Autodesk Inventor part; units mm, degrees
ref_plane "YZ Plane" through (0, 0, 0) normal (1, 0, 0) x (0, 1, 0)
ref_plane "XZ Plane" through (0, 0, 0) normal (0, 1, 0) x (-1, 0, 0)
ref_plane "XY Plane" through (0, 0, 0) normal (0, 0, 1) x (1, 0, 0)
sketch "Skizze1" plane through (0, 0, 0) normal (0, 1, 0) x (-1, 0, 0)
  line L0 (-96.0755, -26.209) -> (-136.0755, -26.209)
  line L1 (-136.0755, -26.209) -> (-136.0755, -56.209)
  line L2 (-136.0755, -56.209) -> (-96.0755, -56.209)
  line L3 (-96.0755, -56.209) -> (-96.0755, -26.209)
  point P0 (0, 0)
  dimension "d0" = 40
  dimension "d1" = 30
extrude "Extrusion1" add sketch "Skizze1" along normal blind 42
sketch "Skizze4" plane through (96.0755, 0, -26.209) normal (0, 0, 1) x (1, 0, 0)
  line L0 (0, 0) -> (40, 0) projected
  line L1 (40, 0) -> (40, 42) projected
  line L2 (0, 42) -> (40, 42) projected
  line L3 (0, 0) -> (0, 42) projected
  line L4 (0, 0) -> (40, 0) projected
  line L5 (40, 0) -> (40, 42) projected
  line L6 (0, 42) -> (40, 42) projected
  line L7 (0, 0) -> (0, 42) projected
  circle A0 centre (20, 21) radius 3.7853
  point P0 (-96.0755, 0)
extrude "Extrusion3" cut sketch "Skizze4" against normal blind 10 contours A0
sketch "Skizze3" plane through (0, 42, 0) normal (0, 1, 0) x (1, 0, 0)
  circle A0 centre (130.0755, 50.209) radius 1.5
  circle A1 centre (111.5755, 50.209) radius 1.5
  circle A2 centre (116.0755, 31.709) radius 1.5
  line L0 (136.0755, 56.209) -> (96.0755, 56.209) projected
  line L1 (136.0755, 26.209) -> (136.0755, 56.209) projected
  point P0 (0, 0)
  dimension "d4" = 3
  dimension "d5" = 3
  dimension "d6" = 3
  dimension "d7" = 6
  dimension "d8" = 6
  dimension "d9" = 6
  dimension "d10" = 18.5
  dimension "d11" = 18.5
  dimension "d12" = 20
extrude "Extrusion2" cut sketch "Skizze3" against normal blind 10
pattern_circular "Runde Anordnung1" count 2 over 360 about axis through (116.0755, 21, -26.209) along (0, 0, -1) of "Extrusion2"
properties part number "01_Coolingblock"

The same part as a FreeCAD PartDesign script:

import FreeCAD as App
import Part
import Sketcher

V = App.Vector


def add_polygon(sketch, points):
    """Adds a closed chain of lines whose ends are joined by coincident constraints."""
    first, n = sketch.GeometryCount, len(points)
    for a, b in zip(points, points[1:] + points[:1]):
        sketch.addGeometry(Part.LineSegment(App.Vector(*a, 0), App.Vector(*b, 0)), False)
    for i in range(n):
        sketch.addConstraint(Sketcher.Constraint("Coincident", first + i, 2, first + (i + 1) % n, 1))

doc = App.newDocument("Part")
body = doc.addObject("PartDesign::Body", "Body")

# Sketch on XZ plane
sketch1 = body.newObject("Sketcher::SketchObject", "Sketch")
sketch1.AttachmentSupport = (doc.getObject("XZ_Plane"), [""])
sketch1.MapMode = "FlatFace"
add_polygon(sketch1, [(96, -56), (96, -26), (136, -26), (136, -56)])  # lines 0-3
sketch1.addConstraint(Sketcher.Constraint("Vertical", 0))
sketch1.addConstraint(Sketcher.Constraint("Horizontal", 1))
sketch1.addConstraint(Sketcher.Constraint("Vertical", 2))
sketch1.addConstraint(Sketcher.Constraint("Horizontal", 3))
sketch1.addConstraint(Sketcher.Constraint("DistanceX", 1, 1, 1, 2, 40.0))
sketch1.addConstraint(Sketcher.Constraint("DistanceY", 0, 1, 0, 2, 30.0))
sketch1.addConstraint(Sketcher.Constraint("DistanceY", 0, 2, -1, 1, 26.209))
sketch1.addConstraint(Sketcher.Constraint("DistanceX", -1, 1, 0, 2, 96.0755))
pad1 = body.newObject("PartDesign::Pad", "Pad")
pad1.Profile = sketch1
pad1.Length = 42
pad1.Reversed = True

# Sketch on XY plane
sketch2 = body.newObject("Sketcher::SketchObject", "Sketch001")
sketch2.AttachmentSupport = (doc.getObject("XY_Plane"), [""])
sketch2.MapMode = "FlatFace"
sketch2.AttachmentOffset = App.Placement(V(0, 0, -26.209), App.Rotation())
sketch2.addGeometry(Part.Circle(V(116.1, 21, 0), V(0, 0, 1), 3.8), False)
sketch2.addConstraint(Sketcher.Constraint("DistanceY", -1, 1, 0, 3, 21.0))
sketch2.addConstraint(Sketcher.Constraint("Diameter", 0, 7.5706))
sketch2.addConstraint(Sketcher.Constraint("DistanceX", -1, 1, 0, 3, 116.0755))
pocket1 = body.newObject("PartDesign::Pocket", "Pocket")
pocket1.Profile = sketch2
pocket1.Length = 10

# Sketch on XZ plane
sketch3 = body.newObject("Sketcher::SketchObject", "Sketch002")
sketch3.AttachmentSupport = (doc.getObject("XZ_Plane"), [""])
sketch3.MapMode = "FlatFace"
sketch3.AttachmentOffset = App.Placement(V(0, 0, -42), App.Rotation())
sketch3.addGeometry(Part.Circle(V(130.1, -50.2, 0), V(0, 0, 1), 1.5), False)
sketch3.addGeometry(Part.Circle(V(111.6, -50.2, 0), V(0, 0, 1), 1.5), False)
sketch3.addGeometry(Part.Circle(V(116.1, -31.7, 0), V(0, 0, 1), 1.5), False)
sketch3.addConstraint(Sketcher.Constraint("Equal", 0, 1))
sketch3.addConstraint(Sketcher.Constraint("Equal", 1, 2))
sketch3.addConstraint(Sketcher.Constraint("Horizontal", 0, 3, 1, 3))
sketch3.addConstraint(Sketcher.Constraint("Diameter", 0, 3.0))
sketch3.addConstraint(Sketcher.Constraint("DistanceX", 1, 3, 0, 3, 18.5))
sketch3.addConstraint(Sketcher.Constraint("DistanceY", 1, 3, 2, 3, 18.5))
sketch3.addConstraint(Sketcher.Constraint("DistanceX", 2, 3, 0, 3, 14.0))
sketch3.addConstraint(Sketcher.Constraint("DistanceY", 0, 3, -1, 1, 50.209))
sketch3.addConstraint(Sketcher.Constraint("DistanceX", -1, 1, 0, 3, 130.0755))
pocket2 = body.newObject("PartDesign::Pocket", "Pocket001")
pocket2.Profile = sketch3
pocket2.Length = 10
pocket2.Reversed = True
doc.recompute()

datumline = body.newObject("PartDesign::Line", "DatumLine")
datumline.Placement = App.Placement(V(116.0755, 21, 0), App.Rotation(V(0, 0, 1), V(0, 0, 1)))
polarpattern = body.newObject("PartDesign::PolarPattern", "PolarPattern")
polarpattern.Originals = [pocket2]
polarpattern.Axis = (datumline, [""])
polarpattern.Angle = 360
polarpattern.Occurrences = 2
body.Tip = polarpattern

doc.recompute()
